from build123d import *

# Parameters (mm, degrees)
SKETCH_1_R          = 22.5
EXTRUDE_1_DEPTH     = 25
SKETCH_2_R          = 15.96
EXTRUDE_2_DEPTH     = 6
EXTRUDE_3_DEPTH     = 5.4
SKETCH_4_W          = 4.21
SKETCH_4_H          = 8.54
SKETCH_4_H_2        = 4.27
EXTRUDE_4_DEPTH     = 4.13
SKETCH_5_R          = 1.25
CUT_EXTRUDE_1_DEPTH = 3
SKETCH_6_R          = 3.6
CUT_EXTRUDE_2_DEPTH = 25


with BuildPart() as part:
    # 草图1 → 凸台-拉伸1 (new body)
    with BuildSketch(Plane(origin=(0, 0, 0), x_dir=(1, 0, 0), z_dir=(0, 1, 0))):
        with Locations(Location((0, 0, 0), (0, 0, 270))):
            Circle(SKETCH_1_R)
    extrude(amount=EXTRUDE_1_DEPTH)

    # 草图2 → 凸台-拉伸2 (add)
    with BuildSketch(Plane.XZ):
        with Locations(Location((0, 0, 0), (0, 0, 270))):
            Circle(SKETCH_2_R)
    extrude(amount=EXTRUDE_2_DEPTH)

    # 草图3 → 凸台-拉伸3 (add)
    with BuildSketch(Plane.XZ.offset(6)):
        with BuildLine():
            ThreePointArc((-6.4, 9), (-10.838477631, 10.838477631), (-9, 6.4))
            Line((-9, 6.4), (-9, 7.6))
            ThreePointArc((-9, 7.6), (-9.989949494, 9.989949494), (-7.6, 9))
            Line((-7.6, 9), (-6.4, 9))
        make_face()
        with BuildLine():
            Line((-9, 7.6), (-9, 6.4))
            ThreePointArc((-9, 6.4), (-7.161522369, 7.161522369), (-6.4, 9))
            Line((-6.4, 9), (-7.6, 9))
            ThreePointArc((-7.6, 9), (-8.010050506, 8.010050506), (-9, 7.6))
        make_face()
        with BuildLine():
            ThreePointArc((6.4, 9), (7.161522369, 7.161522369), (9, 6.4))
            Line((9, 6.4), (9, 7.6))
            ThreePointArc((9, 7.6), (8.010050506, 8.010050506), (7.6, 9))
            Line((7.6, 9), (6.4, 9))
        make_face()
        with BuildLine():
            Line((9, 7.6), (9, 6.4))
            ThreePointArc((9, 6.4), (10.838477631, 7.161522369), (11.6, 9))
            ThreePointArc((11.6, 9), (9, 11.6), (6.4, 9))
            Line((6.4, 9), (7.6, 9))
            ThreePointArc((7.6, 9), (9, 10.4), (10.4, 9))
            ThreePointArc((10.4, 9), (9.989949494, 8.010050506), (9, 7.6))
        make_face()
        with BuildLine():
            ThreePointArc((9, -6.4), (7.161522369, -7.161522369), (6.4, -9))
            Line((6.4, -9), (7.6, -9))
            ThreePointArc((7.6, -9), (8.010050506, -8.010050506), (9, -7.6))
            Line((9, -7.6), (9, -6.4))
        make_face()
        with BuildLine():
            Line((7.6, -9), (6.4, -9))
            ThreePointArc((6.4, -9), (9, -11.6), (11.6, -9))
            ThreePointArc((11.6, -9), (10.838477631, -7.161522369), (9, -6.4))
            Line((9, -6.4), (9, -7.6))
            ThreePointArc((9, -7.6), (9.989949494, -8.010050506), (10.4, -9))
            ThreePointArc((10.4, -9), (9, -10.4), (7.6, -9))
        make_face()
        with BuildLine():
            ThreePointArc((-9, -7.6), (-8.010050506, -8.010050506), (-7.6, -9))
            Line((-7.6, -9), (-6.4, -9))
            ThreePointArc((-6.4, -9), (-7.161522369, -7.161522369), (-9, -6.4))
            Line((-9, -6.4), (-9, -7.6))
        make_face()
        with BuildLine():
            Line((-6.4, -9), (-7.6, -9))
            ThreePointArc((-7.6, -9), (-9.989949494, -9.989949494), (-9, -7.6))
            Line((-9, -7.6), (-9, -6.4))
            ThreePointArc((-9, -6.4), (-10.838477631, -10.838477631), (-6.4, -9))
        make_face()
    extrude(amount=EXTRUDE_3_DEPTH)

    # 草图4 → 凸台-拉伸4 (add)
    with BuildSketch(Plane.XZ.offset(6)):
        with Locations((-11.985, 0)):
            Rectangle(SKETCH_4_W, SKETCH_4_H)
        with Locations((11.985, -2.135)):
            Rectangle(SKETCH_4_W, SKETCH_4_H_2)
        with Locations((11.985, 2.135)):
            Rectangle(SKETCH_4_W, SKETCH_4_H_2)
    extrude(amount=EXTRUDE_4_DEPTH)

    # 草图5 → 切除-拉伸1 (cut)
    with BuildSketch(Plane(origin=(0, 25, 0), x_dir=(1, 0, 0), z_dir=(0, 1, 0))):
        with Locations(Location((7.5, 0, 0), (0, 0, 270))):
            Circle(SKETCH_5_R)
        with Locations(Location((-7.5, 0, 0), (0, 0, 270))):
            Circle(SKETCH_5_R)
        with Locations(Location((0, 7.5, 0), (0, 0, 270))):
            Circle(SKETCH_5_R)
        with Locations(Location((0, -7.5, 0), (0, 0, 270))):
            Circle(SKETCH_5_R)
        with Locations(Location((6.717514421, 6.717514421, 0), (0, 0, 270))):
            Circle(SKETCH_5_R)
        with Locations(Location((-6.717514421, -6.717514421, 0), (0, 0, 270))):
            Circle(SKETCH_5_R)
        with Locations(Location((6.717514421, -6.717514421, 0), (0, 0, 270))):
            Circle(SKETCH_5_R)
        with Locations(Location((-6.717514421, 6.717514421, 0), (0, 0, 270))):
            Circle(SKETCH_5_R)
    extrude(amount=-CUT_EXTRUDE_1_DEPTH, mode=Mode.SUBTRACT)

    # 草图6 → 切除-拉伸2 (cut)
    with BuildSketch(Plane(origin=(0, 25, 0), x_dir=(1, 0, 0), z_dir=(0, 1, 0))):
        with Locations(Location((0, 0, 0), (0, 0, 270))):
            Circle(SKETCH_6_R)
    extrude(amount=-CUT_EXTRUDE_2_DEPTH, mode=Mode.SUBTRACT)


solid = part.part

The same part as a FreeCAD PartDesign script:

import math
import FreeCAD as App
import Part
import Sketcher

V = App.Vector

doc = App.newDocument("Part")
body = doc.addObject("PartDesign::Body", "Body")

sketch1 = body.newObject("Sketcher::SketchObject", "Sketch")
sketch1.AttachmentSupport = (doc.getObject("XZ_Plane"), [""])
sketch1.MapMode = "FlatFace"
sketch1.addGeometry(Part.Circle(V(0, 0, 0), V(0, 0, 1), 22), False)
sketch1.addConstraint(Sketcher.Constraint("Coincident", 0, 3, -1, 1))
sketch1.addConstraint(Sketcher.Constraint("Diameter", 0, 45.0))
pad1 = body.newObject("PartDesign::Pad", "Pad")
pad1.Profile = sketch1
pad1.Length = 25
pad1.Reversed = True

sketch2 = body.newObject("Sketcher::SketchObject", "Sketch001")
sketch2.AttachmentSupport = (doc.getObject("XZ_Plane"), [""])
sketch2.MapMode = "FlatFace"
sketch2.addGeometry(Part.Circle(V(0, 0, 0), V(0, 0, 1), 16), False)
sketch2.addConstraint(Sketcher.Constraint("Coincident", 0, 3, -1, 1))
sketch2.addConstraint(Sketcher.Constraint("Diameter", 0, 31.92))
pad2 = body.newObject("PartDesign::Pad", "Pad001")
pad2.Profile = sketch2
pad2.Length = 6

sketch3 = body.newObject("Sketcher::SketchObject", "Sketch002")
sketch3.AttachmentSupport = (doc.getObject("XZ_Plane"), [""])
sketch3.MapMode = "FlatFace"
sketch3.AttachmentOffset = App.Placement(V(0, 0, 6), App.Rotation())
sketch3.addGeometry(Part.ArcOfCircle(Part.Circle(V(-9, 9, 0), V(0, 0, 1), 2.6), math.radians(0), math.radians(270)), False)
sketch3.addGeometry(Part.ArcOfCircle(Part.Circle(V(-9, 9, 0), V(0, 0, 1), 2.6), math.radians(-90), math.radians(0)), False)
sketch3.addGeometry(Part.ArcOfCircle(Part.Circle(V(-9, 9, 0), V(0, 0, 1), 1.4), math.radians(0), math.radians(270)), False)
sketch3.addGeometry(Part.ArcOfCircle(Part.Circle(V(-9, 9, 0), V(0, 0, 1), 1.4), math.radians(-90), math.radians(0)), False)
sketch3.addGeometry(Part.ArcOfCircle(Part.Circle(V(9, 9, 0), V(0, 0, 1), 2.6), math.radians(180), math.radians(270)), False)
sketch3.addGeometry(Part.ArcOfCircle(Part.Circle(V(9, 9, 0), V(0, 0, 1), 2.6), math.radians(-90), math.radians(0)), False)
sketch3.addGeometry(Part.ArcOfCircle(Part.Circle(V(9, 9, 0), V(0, 0, 1), 2.6), math.radians(0), math.radians(180)), False)
sketch3.addGeometry(Part.ArcOfCircle(Part.Circle(V(9, 9, 0), V(0, 0, 1), 1.4), math.radians(180), math.radians(270)), False)
sketch3.addGeometry(Part.ArcOfCircle(Part.Circle(V(9, 9, 0), V(0, 0, 1), 1.4), math.radians(0), math.radians(180)), False)
sketch3.addGeometry(Part.ArcOfCircle(Part.Circle(V(9, 9, 0), V(0, 0, 1), 1.4), math.radians(-90), math.radians(0)), False)
sketch3.addGeometry(Part.ArcOfCircle(Part.Circle(V(9, -9, 0), V(0, 0, 1), 2.6), math.radians(90), math.radians(180)), False)
sketch3.addGeometry(Part.ArcOfCircle(Part.Circle(V(9, -9, 0), V(0, 0, 1), 2.6), math.radians(180), math.radians(360)), False)
sketch3.addGeometry(Part.ArcOfCircle(Part.Circle(V(9, -9, 0), V(0, 0, 1), 2.6), math.radians(0), math.radians(90)), False)
sketch3.addGeometry(Part.ArcOfCircle(Part.Circle(V(9, -9, 0), V(0, 0, 1), 1.4), math.radians(90), math.radians(180)), False)
sketch3.addGeometry(Part.ArcOfCircle(Part.Circle(V(9, -9, 0), V(0, 0, 1), 1.4), math.radians(0), math.radians(90)), False)
sketch3.addGeometry(Part.ArcOfCircle(Part.Circle(V(9, -9, 0), V(0, 0, 1), 1.4), math.radians(180), math.radians(360)), False)
sketch3.addGeometry(Part.ArcOfCircle(Part.Circle(V(-9, -9, 0), V(0, 0, 1), 2.6), math.radians(0), math.radians(90)), False)
sketch3.addGeometry(Part.ArcOfCircle(Part.Circle(V(-9, -9, 0), V(0, 0, 1), 2.6), math.radians(90), math.radians(360)), False)
sketch3.addGeometry(Part.ArcOfCircle(Part.Circle(V(-9, -9, 0), V(0, 0, 1), 1.4), math.radians(0), math.radians(90)), False)
sketch3.addGeometry(Part.ArcOfCircle(Part.Circle(V(-9, -9, 0), V(0, 0, 1), 1.4), math.radians(90), math.radians(360)), False)
sketch3.addConstraint(Sketcher.Constraint("Tangent", 0, 1, 1, 2))
sketch3.addConstraint(Sketcher.Constraint("Coincident", 1, 1, 0, 2))
sketch3.addConstraint(Sketcher.Constraint("Tangent", 2, 1, 3, 2))
sketch3.addConstraint(Sketcher.Constraint("Coincident", 3, 1, 2, 2))
sketch3.addConstraint(Sketcher.Constraint("Tangent", 4, 2, 5, 1))
sketch3.addConstraint(Sketcher.Constraint("Tangent", 5, 2, 6, 1))
sketch3.addConstraint(Sketcher.Constraint("Tangent", 6, 2, 4, 1))
sketch3.addConstraint(Sketcher.Constraint("Tangent", 7, 1, 8, 2))
sketch3.addConstraint(Sketcher.Constraint("Tangent", 8, 1, 9, 2))
sketch3.addConstraint(Sketcher.Constraint("Tangent", 9, 1, 7, 2))
sketch3.addConstraint(Sketcher.Constraint("Tangent", 10, 2, 11, 1))
sketch3.addConstraint(Sketcher.Constraint("Tangent", 11, 2, 12, 1))
sketch3.addConstraint(Sketcher.Constraint("Tangent", 12, 2, 10, 1))
sketch3.addConstraint(Sketcher.Constraint("Tangent", 13, 1, 14, 2))
sketch3.addConstraint(Sketcher.Constraint("Tangent", 14, 1, 15, 2))
sketch3.addConstraint(Sketcher.Constraint("Tangent", 15, 1, 13, 2))
sketch3.addConstraint(Sketcher.Constraint("Tangent", 16, 1, 17, 2))
sketch3.addConstraint(Sketcher.Constraint("Coincident", 17, 1, 16, 2))
sketch3.addConstraint(Sketcher.Constraint("Tangent", 18, 1, 19, 2))
sketch3.addConstraint(Sketcher.Constraint("Coincident", 19, 1, 18, 2))
sketch3.addConstraint(Sketcher.Constraint("Coincident", 2, 3, 0, 3))
sketch3.addConstraint(Sketcher.Constraint("Coincident", 7, 3, 4, 3))
sketch3.addConstraint(Sketcher.Constraint("Coincident", 13, 3, 10, 3))
sketch3.addConstraint(Sketcher.Constraint("Coincident", 18, 3, 16, 3))
sketch3.addConstraint(Sketcher.Constraint("Equal", 1, 4))
sketch3.addConstraint(Sketcher.Constraint("Equal", 3, 7))
sketch3.addConstraint(Sketcher.Constraint("Equal", 6, 10))
sketch3.addConstraint(Sketcher.Constraint("Equal", 9, 13))
sketch3.addConstraint(Sketcher.Constraint("Equal", 12, 16))
sketch3.addConstraint(Sketcher.Constraint("Equal", 15, 18))
sketch3.addConstraint(Sketcher.Constraint("Symmetric", 0, 3, 10, 3, -1, 1))
sketch3.addConstraint(Sketcher.Constraint("Symmetric", 4, 3, 16, 3, -1, 1))
sketch3.addConstraint(Sketcher.Constraint("Symmetric", 0, 3, 4, 3, -2))
sketch3.addConstraint(Sketcher.Constraint("Horizontal", 9, 3, 0, 1))
sketch3.addConstraint(Sketcher.Constraint("Horizontal", 0, 1, 2, 1))
sketch3.addConstraint(Sketcher.Constraint("Horizontal", 2, 1, 5, 2))
sketch3.addConstraint(Sketcher.Constraint("Horizontal", 5, 2, 6, 2))
sketch3.addConstraint(Sketcher.Constraint("Horizontal", 6, 2, 7, 1))
sketch3.addConstraint(Sketcher.Constraint("Horizontal", 7, 1, 8, 1))
sketch3.addConstraint(Sketcher.Constraint("Horizontal", 19, 3, 10, 2))
sketch3.addConstraint(Sketcher.Constraint("Horizontal", 10, 2, 11, 2))
sketch3.addConstraint(Sketcher.Constraint("Horizontal", 11, 2, 14, 1))
sketch3.addConstraint(Sketcher.Constraint("Horizontal", 14, 1, 15, 1))
sketch3.addConstraint(Sketcher.Constraint("Horizontal", 15, 1, 16, 1))
sketch3.addConstraint(Sketcher.Constraint("Horizontal", 16, 1, 18, 1))
sketch3.addConstraint(Sketcher.Constraint("Vertical", 19, 3, 1, 1))
sketch3.addConstraint(Sketcher.Constraint("Vertical", 1, 1, 3, 1))
sketch3.addConstraint(Sketcher.Constraint("Vertical", 15, 3, 4, 2))
sketch3.addConstraint(Sketcher.Constraint("Vertical", 4, 2, 9, 1))
sketch3.addConstraint(Sketcher.Constraint("Vertical", 9, 1, 12, 2))
sketch3.addConstraint(Sketcher.Constraint("Vertical", 12, 2, 13, 1))
sketch3.addConstraint(Sketcher.Constraint("Vertical", 3, 1, 17, 1))
sketch3.addConstraint(Sketcher.Constraint("Vertical", 17, 1, 19, 1))
sketch3.addConstraint(Sketcher.Constraint("Radius", 0, 2.6))
sketch3.addConstraint(Sketcher.Constraint("Radius", 2, 1.4))
sketch3.addConstraint(Sketcher.Constraint("DistanceX", 0, 3, -1, 1, 9.0))
sketch3.addConstraint(Sketcher.Constraint("DistanceY", -1, 1, 0, 3, 9.0))
pad3 = body.newObject("PartDesign::Pad", "Pad002")
pad3.Profile = sketch3
pad3.Length = 5.4

sketch4 = body.newObject("Sketcher::SketchObject", "Sketch003")
sketch4.AttachmentSupport = (doc.getObject("XZ_Plane"), [""])
sketch4.MapMode = "FlatFace"
sketch4.AttachmentOffset = App.Placement(V(0, 0, 6), App.Rotation())
sketch4.addGeometry(Part.LineSegment(V(-14.1, 4.3, 0), V(-14.1, -4.3, 0)), False)
sketch4.addGeometry(Part.LineSegment(V(-14.1, -4.3, 0), V(-9.9, -4.3, 0)), False)
sketch4.addGeometry(Part.LineSegment(V(-9.9, -4.3, 0), V(-9.9, 4.3, 0)), False)
sketch4.addGeometry(Part.LineSegment(V(-9.9, 4.3, 0), V(-14.1, 4.3, 0)), False)
sketch4.addGeometry(Part.LineSegment(V(9.9, -4.3, 0), V(14.1, -4.3, 0)), False)
sketch4.addGeometry(Part.LineSegment(V(14.1, -4.3, 0), V(14.1, 4.3, 0)), False)
sketch4.addGeometry(Part.LineSegment(V(14.1, 4.3, 0), V(9.9, 4.3, 0)), False)
sketch4.addGeometry(Part.LineSegment(V(9.9, 4.3, 0), V(9.9, -4.3, 0)), False)
sketch4.addConstraint(Sketcher.Constraint("Coincident", 0, 2, 1, 1))
sketch4.addConstraint(Sketcher.Constraint("Coincident", 1, 2, 2, 1))
sketch4.addConstraint(Sketcher.Constraint("Coincident", 2, 2, 3, 1))
sketch4.addConstraint(Sketcher.Constraint("Coincident", 3, 2, 0, 1))
sketch4.addConstraint(Sketcher.Constraint("Coincident", 4, 2, 5, 1))
sketch4.addConstraint(Sketcher.Constraint("Coincident", 5, 2, 6, 1))
sketch4.addConstraint(Sketcher.Constraint("Coincident", 6, 2, 7, 1))
sketch4.addConstraint(Sketcher.Constraint("Coincident", 7, 2, 4, 1))
sketch4.addConstraint(Sketcher.Constraint("Vertical", 0))
sketch4.addConstraint(Sketcher.Constraint("Horizontal", 1))
sketch4.addConstraint(Sketcher.Constraint("Vertical", 2))
sketch4.addConstraint(Sketcher.Constraint("Horizontal", 3))
sketch4.addConstraint(Sketcher.Constraint("Horizontal", 4))
sketch4.addConstraint(Sketcher.Constraint("Vertical", 5))
sketch4.addConstraint(Sketcher.Constraint("Horizontal", 6))
sketch4.addConstraint(Sketcher.Constraint("Vertical", 7))
sketch4.addConstraint(Sketcher.Constraint("Symmetric", 3, 2, 4, 2, -1, 1))
sketch4.addConstraint(Sketcher.Constraint("Symmetric", 1, 2, 6, 2, -1, 1))
sketch4.addConstraint(Sketcher.Constraint("Horizontal", 1, 2, 4, 2))
sketch4.addConstraint(Sketcher.Constraint("DistanceX", 1, 1, 1, 2, 4.21))
sketch4.addConstraint(Sketcher.Constraint("DistanceY", 0, 2, 0, 1, 8.54))
sketch4.addConstraint(Sketcher.Constraint("DistanceX", 0, 2, -1, 1, 14.09))
pad4 = body.newObject("PartDesign::Pad", "Pad003")
pad4.Profile = sketch4
pad4.Length = 4.13

sketch5 = body.newObject("Sketcher::SketchObject", "Sketch004")
sketch5.AttachmentSupport = (doc.getObject("XZ_Plane"), [""])
sketch5.MapMode = "FlatFace"
sketch5.AttachmentOffset = App.Placement(V(0, 0, -25), App.Rotation())
sketch5.addGeometry(Part.Circle(V(7.5, 0, 0), V(0, 0, 1), 1.2), False)
sketch5.addGeometry(Part.Circle(V(-7.5, 0, 0), V(0, 0, 1), 1.2), False)
sketch5.addGeometry(Part.Circle(V(0, -7.5, 0), V(0, 0, 1), 1.2), False)
sketch5.addGeometry(Part.Circle(V(0, 7.5, 0), V(0, 0, 1), 1.2), False)
sketch5.addGeometry(Part.Circle(V(6.7, -6.7, 0), V(0, 0, 1), 1.2), False)
sketch5.addGeometry(Part.Circle(V(-6.7, 6.7, 0), V(0, 0, 1), 1.2), False)
sketch5.addGeometry(Part.Circle(V(6.7, 6.7, 0), V(0, 0, 1), 1.2), False)
sketch5.addGeometry(Part.Circle(V(-6.7, -6.7, 0), V(0, 0, 1), 1.2), False)
sketch5.addConstraint(Sketcher.Constraint("Equal", 0, 1))
sketch5.addConstraint(Sketcher.Constraint("Equal", 1, 2))
sketch5.addConstraint(Sketcher.Constraint("Equal", 2, 3))
sketch5.addConstraint(Sketcher.Constraint("Equal", 3, 4))
sketch5.addConstraint(Sketcher.Constraint("Equal", 4, 5))
sketch5.addConstraint(Sketcher.Constraint("Equal", 5, 6))
sketch5.addConstraint(Sketcher.Constraint("Equal", 6, 7))
sketch5.addConstraint(Sketcher.Constraint("Symmetric", 0, 3, 1, 3, -1, 1))
sketch5.addConstraint(Sketcher.Constraint("Symmetric", 2, 3, 3, 3, -1, 1))
sketch5.addConstraint(Sketcher.Constraint("Symmetric", 4, 3, 5, 3, -1, 1))
sketch5.addConstraint(Sketcher.Constraint("Symmetric", 6, 3, 7, 3, -1, 1))
sketch5.addConstraint(Sketcher.Constraint("Symmetric", 5, 3, 6, 3, -2))
sketch5.addConstraint(Sketcher.Constraint("PointOnObject", 0, 3, -1))
sketch5.addConstraint(Sketcher.Constraint("PointOnObject", 2, 3, -2))
sketch5.addConstraint(Sketcher.Constraint("Diameter", 0, 2.5))
sketch5.addConstraint(Sketcher.Constraint("DistanceX", 1, 3, 0, 3, 15.0))
sketch5.addConstraint(Sketcher.Constraint("DistanceY", 2, 3, 3, 3, 15.0))
sketch5.addConstraint(Sketcher.Constraint("DistanceX", 5, 3, 4, 3, 13.435029))
sketch5.addConstraint(Sketcher.Constraint("DistanceY", 4, 3, 5, 3, 13.435029))
pocket1 = body.newObject("PartDesign::Pocket", "Pocket")
pocket1.Profile = sketch5
pocket1.Length = 3
pocket1.Reversed = True

sketch6 = body.newObject("Sketcher::SketchObject", "Sketch005")
sketch6.AttachmentSupport = (doc.getObject("XZ_Plane"), [""])
sketch6.MapMode = "FlatFace"
sketch6.AttachmentOffset = App.Placement(V(0, 0, -25), App.Rotation())
sketch6.addGeometry(Part.Circle(V(0, 0, 0), V(0, 0, 1), 3.6), False)
sketch6.addConstraint(Sketcher.Constraint("Coincident", 0, 3, -1, 1))
sketch6.addConstraint(Sketcher.Constraint("Diameter", 0, 7.2))
pocket2 = body.newObject("PartDesign::Pocket", "Pocket001")
pocket2.Profile = sketch6
pocket2.Length = 25
pocket2.Reversed = True

doc.recompute()
